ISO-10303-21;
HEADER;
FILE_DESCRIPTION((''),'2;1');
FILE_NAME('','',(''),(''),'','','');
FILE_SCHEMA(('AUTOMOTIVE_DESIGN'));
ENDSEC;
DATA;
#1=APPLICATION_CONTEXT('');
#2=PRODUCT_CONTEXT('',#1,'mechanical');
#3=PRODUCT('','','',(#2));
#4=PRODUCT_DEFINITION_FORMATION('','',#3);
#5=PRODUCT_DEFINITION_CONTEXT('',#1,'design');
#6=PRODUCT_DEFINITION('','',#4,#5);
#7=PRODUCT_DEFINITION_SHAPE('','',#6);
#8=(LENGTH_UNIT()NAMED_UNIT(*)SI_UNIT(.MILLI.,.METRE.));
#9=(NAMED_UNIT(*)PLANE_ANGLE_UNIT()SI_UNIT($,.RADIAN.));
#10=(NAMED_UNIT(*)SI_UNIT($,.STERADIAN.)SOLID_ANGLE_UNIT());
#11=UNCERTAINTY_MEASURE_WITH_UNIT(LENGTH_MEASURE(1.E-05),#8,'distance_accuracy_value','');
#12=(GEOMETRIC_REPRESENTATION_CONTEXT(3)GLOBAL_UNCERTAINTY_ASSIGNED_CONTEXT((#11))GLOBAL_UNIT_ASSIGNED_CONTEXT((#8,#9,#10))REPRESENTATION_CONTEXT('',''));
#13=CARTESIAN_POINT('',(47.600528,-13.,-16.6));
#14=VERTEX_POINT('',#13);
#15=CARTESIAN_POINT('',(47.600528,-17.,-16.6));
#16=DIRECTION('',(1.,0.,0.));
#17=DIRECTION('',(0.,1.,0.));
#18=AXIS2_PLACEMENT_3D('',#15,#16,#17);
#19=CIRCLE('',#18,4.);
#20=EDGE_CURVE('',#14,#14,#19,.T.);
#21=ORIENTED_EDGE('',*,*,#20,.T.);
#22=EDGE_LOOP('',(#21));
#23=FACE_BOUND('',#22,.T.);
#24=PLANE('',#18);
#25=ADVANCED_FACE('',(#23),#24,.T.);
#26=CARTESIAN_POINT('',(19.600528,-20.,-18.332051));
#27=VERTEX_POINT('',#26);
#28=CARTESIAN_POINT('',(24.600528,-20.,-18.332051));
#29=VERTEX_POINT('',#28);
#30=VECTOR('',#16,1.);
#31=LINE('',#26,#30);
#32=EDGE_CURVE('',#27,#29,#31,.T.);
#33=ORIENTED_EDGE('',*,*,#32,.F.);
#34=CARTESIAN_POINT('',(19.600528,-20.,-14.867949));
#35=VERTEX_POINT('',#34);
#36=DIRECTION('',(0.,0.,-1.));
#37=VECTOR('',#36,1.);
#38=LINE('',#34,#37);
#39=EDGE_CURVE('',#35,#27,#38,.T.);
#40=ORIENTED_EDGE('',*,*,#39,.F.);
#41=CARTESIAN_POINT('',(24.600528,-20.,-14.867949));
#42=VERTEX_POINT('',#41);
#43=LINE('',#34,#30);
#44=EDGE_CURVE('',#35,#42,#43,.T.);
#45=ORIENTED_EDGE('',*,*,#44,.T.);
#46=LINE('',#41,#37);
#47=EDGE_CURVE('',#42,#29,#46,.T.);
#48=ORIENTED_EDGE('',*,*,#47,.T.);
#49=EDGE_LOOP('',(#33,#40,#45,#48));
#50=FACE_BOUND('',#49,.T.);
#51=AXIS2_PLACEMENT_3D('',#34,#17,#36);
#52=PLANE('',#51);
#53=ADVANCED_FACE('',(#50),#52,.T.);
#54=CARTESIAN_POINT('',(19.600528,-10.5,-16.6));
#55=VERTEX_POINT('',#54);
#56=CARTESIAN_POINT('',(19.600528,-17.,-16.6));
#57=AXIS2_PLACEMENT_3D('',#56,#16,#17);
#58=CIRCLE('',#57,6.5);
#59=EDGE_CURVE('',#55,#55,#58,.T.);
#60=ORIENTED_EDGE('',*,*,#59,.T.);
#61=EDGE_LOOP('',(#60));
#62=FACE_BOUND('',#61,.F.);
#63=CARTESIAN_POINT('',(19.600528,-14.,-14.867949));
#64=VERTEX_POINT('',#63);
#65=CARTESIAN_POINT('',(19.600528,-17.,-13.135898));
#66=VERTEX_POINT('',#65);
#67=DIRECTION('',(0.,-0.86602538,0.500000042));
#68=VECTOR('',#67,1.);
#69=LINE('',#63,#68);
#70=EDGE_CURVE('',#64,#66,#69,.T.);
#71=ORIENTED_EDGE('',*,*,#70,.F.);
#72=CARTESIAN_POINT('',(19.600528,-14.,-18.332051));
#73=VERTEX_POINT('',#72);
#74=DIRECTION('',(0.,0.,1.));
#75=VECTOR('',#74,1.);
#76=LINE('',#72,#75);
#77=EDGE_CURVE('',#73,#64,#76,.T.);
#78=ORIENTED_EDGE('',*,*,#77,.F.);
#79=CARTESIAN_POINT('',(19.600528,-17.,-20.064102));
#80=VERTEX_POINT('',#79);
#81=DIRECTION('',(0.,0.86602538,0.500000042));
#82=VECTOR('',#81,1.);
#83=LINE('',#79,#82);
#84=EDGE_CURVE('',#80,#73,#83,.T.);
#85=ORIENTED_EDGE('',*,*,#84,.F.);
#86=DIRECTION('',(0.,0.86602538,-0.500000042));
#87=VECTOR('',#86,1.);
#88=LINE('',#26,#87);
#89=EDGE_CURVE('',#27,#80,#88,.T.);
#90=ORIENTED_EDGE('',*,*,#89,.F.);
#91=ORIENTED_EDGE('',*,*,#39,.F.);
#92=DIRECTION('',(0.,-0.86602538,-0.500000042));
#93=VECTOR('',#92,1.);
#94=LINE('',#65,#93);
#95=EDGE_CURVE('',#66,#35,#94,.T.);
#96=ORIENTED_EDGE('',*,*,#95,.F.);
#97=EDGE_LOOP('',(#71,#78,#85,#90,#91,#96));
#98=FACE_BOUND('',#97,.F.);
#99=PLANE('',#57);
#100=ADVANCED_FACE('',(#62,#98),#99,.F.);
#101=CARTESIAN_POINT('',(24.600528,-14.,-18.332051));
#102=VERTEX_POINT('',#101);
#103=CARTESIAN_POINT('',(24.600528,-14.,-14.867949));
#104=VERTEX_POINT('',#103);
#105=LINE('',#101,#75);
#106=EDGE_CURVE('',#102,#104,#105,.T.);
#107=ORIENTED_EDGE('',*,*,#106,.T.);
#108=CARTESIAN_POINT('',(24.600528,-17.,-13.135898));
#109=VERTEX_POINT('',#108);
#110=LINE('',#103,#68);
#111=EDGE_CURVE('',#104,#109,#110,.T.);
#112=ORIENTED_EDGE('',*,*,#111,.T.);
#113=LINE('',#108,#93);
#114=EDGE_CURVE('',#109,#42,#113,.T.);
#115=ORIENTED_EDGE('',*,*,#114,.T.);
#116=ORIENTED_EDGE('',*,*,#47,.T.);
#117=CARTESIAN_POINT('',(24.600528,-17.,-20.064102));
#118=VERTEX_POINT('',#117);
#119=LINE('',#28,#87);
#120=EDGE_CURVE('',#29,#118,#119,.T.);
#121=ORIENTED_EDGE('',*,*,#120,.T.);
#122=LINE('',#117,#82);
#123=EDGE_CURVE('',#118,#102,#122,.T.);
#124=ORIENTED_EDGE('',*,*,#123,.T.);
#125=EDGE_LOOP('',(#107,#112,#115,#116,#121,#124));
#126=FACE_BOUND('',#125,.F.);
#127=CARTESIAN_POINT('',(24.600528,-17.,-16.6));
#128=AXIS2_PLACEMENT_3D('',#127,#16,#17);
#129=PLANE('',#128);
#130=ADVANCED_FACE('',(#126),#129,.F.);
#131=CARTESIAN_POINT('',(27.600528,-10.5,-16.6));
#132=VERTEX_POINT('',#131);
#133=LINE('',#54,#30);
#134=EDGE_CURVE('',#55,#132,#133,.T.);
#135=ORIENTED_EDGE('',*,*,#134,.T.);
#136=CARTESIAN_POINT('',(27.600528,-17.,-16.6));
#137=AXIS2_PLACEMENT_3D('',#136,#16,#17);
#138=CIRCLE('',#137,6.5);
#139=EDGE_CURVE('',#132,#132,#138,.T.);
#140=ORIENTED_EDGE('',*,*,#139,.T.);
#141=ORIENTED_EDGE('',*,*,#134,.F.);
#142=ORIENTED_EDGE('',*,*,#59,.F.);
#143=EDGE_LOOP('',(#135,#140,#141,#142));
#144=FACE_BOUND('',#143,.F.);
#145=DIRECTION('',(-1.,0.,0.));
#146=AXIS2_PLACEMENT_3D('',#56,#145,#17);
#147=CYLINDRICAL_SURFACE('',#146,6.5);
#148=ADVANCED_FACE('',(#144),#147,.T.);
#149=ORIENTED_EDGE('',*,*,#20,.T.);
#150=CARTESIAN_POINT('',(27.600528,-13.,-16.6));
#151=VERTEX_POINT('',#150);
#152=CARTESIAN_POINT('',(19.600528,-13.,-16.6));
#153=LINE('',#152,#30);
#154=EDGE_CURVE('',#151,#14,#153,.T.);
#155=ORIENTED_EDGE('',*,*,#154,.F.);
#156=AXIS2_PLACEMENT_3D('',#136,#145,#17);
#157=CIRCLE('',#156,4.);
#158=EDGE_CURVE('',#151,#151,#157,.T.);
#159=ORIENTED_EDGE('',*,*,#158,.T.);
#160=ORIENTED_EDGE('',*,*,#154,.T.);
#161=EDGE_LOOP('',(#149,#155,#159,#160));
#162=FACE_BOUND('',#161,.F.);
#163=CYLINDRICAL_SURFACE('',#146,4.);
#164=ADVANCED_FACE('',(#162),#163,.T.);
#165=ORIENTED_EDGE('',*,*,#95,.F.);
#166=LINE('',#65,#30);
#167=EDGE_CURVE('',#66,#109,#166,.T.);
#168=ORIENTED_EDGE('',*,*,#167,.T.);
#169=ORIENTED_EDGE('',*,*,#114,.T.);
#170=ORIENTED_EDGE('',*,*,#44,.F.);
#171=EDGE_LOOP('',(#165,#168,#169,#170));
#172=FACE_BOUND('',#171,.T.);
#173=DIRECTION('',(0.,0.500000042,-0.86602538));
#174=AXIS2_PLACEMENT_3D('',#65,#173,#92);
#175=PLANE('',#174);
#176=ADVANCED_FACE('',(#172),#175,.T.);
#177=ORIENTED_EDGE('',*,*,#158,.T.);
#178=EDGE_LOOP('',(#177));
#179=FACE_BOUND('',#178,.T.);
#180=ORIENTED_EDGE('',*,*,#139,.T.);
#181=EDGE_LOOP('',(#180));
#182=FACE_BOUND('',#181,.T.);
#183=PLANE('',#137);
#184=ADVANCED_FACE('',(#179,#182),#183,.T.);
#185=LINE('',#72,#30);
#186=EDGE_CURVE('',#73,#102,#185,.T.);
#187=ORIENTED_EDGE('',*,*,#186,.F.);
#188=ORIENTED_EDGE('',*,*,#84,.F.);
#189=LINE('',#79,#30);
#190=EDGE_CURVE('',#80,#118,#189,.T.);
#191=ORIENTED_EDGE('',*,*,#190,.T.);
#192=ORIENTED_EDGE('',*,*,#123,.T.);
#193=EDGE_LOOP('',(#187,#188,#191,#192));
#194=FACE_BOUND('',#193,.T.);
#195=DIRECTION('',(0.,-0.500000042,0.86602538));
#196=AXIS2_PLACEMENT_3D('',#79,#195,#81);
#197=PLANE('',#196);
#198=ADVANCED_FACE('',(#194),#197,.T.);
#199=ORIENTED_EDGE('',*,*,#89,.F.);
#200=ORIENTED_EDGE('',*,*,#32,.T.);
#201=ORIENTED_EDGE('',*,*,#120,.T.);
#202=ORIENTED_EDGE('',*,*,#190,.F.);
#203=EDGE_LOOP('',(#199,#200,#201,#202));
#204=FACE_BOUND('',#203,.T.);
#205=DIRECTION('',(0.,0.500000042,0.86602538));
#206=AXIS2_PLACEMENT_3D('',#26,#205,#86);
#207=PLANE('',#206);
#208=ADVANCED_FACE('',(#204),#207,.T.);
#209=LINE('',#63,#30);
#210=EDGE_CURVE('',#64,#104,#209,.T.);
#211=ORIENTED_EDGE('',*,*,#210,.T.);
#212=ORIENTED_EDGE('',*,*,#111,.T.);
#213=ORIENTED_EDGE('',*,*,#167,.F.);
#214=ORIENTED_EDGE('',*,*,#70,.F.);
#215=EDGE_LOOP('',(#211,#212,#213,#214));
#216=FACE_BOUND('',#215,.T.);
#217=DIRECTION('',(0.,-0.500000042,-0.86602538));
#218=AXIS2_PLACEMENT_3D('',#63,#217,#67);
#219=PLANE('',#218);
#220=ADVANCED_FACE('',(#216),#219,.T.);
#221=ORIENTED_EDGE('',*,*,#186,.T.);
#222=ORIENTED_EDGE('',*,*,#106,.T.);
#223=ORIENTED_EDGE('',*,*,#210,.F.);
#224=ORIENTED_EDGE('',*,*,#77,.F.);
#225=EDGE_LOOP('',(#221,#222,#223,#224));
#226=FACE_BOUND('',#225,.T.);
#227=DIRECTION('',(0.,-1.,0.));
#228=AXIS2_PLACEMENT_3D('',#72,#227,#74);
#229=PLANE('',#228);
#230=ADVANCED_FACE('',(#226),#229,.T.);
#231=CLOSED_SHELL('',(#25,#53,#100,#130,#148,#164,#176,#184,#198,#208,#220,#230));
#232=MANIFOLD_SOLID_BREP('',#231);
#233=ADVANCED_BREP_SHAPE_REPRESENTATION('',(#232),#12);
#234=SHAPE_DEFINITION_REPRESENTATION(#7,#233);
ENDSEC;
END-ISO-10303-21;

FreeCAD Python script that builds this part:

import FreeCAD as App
import Part
import Sketcher

V = App.Vector
Q = App.Units.Quantity


def add_polygon(sketch, points):
    """Adds a closed chain of lines whose ends are joined by coincident constraints."""
    first, n = sketch.GeometryCount, len(points)
    for a, b in zip(points, points[1:] + points[:1]):
        sketch.addGeometry(Part.LineSegment(App.Vector(*a, 0), App.Vector(*b, 0)), False)
    for i in range(n):
        sketch.addConstraint(Sketcher.Constraint("Coincident", first + i, 2, first + (i + 1) % n, 1))

doc = App.newDocument("Part")
body = doc.addObject("PartDesign::Body", "Body")

sketch1 = doc.addObject("Sketcher::SketchObject", "Sketch")
body.addObject(sketch1)
sketch1.AttachmentSupport = (doc.YZ_Plane, [""])
sketch1.MapMode = "FlatFace"
sketch1.addGeometry(Part.Circle(V(0, 0, 0), V(0, 0, 1), 4), False)
sketch1.addConstraint([
    Sketcher.Constraint("Coincident", 0, 3, -1, 1),
    Sketcher.Constraint("Diameter", 0, Q("8 mm")),
])
pad1 = doc.addObject("PartDesign::Pad", "Pad")
body.addObject(pad1)
pad1.Profile = sketch1
pad1.Length = 28

sketch2 = doc.addObject("Sketcher::SketchObject", "Sketch001")
body.addObject(sketch2)
sketch2.AttachmentSupport = (doc.YZ_Plane, [""])
sketch2.MapMode = "FlatFace"
sketch2.addGeometry(Part.Circle(V(0, 0, 0), V(0, 0, 1), 6), False)
sketch2.addConstraint([
    Sketcher.Constraint("Coincident", 0, 3, -1, 1),
    Sketcher.Constraint("Diameter", 0, Q("13 mm")),
])
pad2 = doc.addObject("PartDesign::Pad", "Pad001")
body.addObject(pad2)
pad2.Profile = sketch2
pad2.Length = 8

sketch3 = doc.addObject("Sketcher::SketchObject", "Sketch002")
body.addObject(sketch3)
sketch3.AttachmentSupport = (doc.YZ_Plane, [""])
sketch3.MapMode = "FlatFace"
add_polygon(sketch3, [(3, 1.7), (0, 3.5), (-3, 1.7), (-3, -1.7), (0, -3.5), (3, -1.7)])
sketch3.addConstraint([
    Sketcher.Constraint("Vertical", 2),
    Sketcher.Constraint("Vertical", 5),
    Sketcher.Constraint("Symmetric", 0, 2, 3, 2, -1, 1),
    Sketcher.Constraint("Symmetric", 1, 2, 4, 2, -1, 1),
    Sketcher.Constraint("PointOnObject", 0, 2, -2),
    Sketcher.Constraint("Parallel", 0, 3),
    Sketcher.Constraint("Horizontal", 2, 2, 4, 2),
    Sketcher.Constraint("Angle", 0, Q("149.999997 deg")),
    Sketcher.Constraint("DistanceX", 1, 2, -1, 1, Q("3 mm")),
    Sketcher.Constraint("DistanceY", 2, 2, 2, 1, Q("3.464102 mm")),
])
pocket1 = doc.addObject("PartDesign::Pocket", "Pocket")
body.addObject(pocket1)
pocket1.Profile = sketch3
pocket1.Length = 5
pocket1.Reversed = True
body2 = doc.addObject("PartDesign::Body", "Body001")
doc.recompute()

body.Placement = App.Placement(V(19.600528, -17, -16.6), App.Rotation(V(0, 0, 1), 0))
boolean = doc.addObject("PartDesign::Boolean", "Boolean")
body2.addObject(boolean)
boolean.Type = "Fuse"
boolean.addObjects([body])

doc.recompute()
